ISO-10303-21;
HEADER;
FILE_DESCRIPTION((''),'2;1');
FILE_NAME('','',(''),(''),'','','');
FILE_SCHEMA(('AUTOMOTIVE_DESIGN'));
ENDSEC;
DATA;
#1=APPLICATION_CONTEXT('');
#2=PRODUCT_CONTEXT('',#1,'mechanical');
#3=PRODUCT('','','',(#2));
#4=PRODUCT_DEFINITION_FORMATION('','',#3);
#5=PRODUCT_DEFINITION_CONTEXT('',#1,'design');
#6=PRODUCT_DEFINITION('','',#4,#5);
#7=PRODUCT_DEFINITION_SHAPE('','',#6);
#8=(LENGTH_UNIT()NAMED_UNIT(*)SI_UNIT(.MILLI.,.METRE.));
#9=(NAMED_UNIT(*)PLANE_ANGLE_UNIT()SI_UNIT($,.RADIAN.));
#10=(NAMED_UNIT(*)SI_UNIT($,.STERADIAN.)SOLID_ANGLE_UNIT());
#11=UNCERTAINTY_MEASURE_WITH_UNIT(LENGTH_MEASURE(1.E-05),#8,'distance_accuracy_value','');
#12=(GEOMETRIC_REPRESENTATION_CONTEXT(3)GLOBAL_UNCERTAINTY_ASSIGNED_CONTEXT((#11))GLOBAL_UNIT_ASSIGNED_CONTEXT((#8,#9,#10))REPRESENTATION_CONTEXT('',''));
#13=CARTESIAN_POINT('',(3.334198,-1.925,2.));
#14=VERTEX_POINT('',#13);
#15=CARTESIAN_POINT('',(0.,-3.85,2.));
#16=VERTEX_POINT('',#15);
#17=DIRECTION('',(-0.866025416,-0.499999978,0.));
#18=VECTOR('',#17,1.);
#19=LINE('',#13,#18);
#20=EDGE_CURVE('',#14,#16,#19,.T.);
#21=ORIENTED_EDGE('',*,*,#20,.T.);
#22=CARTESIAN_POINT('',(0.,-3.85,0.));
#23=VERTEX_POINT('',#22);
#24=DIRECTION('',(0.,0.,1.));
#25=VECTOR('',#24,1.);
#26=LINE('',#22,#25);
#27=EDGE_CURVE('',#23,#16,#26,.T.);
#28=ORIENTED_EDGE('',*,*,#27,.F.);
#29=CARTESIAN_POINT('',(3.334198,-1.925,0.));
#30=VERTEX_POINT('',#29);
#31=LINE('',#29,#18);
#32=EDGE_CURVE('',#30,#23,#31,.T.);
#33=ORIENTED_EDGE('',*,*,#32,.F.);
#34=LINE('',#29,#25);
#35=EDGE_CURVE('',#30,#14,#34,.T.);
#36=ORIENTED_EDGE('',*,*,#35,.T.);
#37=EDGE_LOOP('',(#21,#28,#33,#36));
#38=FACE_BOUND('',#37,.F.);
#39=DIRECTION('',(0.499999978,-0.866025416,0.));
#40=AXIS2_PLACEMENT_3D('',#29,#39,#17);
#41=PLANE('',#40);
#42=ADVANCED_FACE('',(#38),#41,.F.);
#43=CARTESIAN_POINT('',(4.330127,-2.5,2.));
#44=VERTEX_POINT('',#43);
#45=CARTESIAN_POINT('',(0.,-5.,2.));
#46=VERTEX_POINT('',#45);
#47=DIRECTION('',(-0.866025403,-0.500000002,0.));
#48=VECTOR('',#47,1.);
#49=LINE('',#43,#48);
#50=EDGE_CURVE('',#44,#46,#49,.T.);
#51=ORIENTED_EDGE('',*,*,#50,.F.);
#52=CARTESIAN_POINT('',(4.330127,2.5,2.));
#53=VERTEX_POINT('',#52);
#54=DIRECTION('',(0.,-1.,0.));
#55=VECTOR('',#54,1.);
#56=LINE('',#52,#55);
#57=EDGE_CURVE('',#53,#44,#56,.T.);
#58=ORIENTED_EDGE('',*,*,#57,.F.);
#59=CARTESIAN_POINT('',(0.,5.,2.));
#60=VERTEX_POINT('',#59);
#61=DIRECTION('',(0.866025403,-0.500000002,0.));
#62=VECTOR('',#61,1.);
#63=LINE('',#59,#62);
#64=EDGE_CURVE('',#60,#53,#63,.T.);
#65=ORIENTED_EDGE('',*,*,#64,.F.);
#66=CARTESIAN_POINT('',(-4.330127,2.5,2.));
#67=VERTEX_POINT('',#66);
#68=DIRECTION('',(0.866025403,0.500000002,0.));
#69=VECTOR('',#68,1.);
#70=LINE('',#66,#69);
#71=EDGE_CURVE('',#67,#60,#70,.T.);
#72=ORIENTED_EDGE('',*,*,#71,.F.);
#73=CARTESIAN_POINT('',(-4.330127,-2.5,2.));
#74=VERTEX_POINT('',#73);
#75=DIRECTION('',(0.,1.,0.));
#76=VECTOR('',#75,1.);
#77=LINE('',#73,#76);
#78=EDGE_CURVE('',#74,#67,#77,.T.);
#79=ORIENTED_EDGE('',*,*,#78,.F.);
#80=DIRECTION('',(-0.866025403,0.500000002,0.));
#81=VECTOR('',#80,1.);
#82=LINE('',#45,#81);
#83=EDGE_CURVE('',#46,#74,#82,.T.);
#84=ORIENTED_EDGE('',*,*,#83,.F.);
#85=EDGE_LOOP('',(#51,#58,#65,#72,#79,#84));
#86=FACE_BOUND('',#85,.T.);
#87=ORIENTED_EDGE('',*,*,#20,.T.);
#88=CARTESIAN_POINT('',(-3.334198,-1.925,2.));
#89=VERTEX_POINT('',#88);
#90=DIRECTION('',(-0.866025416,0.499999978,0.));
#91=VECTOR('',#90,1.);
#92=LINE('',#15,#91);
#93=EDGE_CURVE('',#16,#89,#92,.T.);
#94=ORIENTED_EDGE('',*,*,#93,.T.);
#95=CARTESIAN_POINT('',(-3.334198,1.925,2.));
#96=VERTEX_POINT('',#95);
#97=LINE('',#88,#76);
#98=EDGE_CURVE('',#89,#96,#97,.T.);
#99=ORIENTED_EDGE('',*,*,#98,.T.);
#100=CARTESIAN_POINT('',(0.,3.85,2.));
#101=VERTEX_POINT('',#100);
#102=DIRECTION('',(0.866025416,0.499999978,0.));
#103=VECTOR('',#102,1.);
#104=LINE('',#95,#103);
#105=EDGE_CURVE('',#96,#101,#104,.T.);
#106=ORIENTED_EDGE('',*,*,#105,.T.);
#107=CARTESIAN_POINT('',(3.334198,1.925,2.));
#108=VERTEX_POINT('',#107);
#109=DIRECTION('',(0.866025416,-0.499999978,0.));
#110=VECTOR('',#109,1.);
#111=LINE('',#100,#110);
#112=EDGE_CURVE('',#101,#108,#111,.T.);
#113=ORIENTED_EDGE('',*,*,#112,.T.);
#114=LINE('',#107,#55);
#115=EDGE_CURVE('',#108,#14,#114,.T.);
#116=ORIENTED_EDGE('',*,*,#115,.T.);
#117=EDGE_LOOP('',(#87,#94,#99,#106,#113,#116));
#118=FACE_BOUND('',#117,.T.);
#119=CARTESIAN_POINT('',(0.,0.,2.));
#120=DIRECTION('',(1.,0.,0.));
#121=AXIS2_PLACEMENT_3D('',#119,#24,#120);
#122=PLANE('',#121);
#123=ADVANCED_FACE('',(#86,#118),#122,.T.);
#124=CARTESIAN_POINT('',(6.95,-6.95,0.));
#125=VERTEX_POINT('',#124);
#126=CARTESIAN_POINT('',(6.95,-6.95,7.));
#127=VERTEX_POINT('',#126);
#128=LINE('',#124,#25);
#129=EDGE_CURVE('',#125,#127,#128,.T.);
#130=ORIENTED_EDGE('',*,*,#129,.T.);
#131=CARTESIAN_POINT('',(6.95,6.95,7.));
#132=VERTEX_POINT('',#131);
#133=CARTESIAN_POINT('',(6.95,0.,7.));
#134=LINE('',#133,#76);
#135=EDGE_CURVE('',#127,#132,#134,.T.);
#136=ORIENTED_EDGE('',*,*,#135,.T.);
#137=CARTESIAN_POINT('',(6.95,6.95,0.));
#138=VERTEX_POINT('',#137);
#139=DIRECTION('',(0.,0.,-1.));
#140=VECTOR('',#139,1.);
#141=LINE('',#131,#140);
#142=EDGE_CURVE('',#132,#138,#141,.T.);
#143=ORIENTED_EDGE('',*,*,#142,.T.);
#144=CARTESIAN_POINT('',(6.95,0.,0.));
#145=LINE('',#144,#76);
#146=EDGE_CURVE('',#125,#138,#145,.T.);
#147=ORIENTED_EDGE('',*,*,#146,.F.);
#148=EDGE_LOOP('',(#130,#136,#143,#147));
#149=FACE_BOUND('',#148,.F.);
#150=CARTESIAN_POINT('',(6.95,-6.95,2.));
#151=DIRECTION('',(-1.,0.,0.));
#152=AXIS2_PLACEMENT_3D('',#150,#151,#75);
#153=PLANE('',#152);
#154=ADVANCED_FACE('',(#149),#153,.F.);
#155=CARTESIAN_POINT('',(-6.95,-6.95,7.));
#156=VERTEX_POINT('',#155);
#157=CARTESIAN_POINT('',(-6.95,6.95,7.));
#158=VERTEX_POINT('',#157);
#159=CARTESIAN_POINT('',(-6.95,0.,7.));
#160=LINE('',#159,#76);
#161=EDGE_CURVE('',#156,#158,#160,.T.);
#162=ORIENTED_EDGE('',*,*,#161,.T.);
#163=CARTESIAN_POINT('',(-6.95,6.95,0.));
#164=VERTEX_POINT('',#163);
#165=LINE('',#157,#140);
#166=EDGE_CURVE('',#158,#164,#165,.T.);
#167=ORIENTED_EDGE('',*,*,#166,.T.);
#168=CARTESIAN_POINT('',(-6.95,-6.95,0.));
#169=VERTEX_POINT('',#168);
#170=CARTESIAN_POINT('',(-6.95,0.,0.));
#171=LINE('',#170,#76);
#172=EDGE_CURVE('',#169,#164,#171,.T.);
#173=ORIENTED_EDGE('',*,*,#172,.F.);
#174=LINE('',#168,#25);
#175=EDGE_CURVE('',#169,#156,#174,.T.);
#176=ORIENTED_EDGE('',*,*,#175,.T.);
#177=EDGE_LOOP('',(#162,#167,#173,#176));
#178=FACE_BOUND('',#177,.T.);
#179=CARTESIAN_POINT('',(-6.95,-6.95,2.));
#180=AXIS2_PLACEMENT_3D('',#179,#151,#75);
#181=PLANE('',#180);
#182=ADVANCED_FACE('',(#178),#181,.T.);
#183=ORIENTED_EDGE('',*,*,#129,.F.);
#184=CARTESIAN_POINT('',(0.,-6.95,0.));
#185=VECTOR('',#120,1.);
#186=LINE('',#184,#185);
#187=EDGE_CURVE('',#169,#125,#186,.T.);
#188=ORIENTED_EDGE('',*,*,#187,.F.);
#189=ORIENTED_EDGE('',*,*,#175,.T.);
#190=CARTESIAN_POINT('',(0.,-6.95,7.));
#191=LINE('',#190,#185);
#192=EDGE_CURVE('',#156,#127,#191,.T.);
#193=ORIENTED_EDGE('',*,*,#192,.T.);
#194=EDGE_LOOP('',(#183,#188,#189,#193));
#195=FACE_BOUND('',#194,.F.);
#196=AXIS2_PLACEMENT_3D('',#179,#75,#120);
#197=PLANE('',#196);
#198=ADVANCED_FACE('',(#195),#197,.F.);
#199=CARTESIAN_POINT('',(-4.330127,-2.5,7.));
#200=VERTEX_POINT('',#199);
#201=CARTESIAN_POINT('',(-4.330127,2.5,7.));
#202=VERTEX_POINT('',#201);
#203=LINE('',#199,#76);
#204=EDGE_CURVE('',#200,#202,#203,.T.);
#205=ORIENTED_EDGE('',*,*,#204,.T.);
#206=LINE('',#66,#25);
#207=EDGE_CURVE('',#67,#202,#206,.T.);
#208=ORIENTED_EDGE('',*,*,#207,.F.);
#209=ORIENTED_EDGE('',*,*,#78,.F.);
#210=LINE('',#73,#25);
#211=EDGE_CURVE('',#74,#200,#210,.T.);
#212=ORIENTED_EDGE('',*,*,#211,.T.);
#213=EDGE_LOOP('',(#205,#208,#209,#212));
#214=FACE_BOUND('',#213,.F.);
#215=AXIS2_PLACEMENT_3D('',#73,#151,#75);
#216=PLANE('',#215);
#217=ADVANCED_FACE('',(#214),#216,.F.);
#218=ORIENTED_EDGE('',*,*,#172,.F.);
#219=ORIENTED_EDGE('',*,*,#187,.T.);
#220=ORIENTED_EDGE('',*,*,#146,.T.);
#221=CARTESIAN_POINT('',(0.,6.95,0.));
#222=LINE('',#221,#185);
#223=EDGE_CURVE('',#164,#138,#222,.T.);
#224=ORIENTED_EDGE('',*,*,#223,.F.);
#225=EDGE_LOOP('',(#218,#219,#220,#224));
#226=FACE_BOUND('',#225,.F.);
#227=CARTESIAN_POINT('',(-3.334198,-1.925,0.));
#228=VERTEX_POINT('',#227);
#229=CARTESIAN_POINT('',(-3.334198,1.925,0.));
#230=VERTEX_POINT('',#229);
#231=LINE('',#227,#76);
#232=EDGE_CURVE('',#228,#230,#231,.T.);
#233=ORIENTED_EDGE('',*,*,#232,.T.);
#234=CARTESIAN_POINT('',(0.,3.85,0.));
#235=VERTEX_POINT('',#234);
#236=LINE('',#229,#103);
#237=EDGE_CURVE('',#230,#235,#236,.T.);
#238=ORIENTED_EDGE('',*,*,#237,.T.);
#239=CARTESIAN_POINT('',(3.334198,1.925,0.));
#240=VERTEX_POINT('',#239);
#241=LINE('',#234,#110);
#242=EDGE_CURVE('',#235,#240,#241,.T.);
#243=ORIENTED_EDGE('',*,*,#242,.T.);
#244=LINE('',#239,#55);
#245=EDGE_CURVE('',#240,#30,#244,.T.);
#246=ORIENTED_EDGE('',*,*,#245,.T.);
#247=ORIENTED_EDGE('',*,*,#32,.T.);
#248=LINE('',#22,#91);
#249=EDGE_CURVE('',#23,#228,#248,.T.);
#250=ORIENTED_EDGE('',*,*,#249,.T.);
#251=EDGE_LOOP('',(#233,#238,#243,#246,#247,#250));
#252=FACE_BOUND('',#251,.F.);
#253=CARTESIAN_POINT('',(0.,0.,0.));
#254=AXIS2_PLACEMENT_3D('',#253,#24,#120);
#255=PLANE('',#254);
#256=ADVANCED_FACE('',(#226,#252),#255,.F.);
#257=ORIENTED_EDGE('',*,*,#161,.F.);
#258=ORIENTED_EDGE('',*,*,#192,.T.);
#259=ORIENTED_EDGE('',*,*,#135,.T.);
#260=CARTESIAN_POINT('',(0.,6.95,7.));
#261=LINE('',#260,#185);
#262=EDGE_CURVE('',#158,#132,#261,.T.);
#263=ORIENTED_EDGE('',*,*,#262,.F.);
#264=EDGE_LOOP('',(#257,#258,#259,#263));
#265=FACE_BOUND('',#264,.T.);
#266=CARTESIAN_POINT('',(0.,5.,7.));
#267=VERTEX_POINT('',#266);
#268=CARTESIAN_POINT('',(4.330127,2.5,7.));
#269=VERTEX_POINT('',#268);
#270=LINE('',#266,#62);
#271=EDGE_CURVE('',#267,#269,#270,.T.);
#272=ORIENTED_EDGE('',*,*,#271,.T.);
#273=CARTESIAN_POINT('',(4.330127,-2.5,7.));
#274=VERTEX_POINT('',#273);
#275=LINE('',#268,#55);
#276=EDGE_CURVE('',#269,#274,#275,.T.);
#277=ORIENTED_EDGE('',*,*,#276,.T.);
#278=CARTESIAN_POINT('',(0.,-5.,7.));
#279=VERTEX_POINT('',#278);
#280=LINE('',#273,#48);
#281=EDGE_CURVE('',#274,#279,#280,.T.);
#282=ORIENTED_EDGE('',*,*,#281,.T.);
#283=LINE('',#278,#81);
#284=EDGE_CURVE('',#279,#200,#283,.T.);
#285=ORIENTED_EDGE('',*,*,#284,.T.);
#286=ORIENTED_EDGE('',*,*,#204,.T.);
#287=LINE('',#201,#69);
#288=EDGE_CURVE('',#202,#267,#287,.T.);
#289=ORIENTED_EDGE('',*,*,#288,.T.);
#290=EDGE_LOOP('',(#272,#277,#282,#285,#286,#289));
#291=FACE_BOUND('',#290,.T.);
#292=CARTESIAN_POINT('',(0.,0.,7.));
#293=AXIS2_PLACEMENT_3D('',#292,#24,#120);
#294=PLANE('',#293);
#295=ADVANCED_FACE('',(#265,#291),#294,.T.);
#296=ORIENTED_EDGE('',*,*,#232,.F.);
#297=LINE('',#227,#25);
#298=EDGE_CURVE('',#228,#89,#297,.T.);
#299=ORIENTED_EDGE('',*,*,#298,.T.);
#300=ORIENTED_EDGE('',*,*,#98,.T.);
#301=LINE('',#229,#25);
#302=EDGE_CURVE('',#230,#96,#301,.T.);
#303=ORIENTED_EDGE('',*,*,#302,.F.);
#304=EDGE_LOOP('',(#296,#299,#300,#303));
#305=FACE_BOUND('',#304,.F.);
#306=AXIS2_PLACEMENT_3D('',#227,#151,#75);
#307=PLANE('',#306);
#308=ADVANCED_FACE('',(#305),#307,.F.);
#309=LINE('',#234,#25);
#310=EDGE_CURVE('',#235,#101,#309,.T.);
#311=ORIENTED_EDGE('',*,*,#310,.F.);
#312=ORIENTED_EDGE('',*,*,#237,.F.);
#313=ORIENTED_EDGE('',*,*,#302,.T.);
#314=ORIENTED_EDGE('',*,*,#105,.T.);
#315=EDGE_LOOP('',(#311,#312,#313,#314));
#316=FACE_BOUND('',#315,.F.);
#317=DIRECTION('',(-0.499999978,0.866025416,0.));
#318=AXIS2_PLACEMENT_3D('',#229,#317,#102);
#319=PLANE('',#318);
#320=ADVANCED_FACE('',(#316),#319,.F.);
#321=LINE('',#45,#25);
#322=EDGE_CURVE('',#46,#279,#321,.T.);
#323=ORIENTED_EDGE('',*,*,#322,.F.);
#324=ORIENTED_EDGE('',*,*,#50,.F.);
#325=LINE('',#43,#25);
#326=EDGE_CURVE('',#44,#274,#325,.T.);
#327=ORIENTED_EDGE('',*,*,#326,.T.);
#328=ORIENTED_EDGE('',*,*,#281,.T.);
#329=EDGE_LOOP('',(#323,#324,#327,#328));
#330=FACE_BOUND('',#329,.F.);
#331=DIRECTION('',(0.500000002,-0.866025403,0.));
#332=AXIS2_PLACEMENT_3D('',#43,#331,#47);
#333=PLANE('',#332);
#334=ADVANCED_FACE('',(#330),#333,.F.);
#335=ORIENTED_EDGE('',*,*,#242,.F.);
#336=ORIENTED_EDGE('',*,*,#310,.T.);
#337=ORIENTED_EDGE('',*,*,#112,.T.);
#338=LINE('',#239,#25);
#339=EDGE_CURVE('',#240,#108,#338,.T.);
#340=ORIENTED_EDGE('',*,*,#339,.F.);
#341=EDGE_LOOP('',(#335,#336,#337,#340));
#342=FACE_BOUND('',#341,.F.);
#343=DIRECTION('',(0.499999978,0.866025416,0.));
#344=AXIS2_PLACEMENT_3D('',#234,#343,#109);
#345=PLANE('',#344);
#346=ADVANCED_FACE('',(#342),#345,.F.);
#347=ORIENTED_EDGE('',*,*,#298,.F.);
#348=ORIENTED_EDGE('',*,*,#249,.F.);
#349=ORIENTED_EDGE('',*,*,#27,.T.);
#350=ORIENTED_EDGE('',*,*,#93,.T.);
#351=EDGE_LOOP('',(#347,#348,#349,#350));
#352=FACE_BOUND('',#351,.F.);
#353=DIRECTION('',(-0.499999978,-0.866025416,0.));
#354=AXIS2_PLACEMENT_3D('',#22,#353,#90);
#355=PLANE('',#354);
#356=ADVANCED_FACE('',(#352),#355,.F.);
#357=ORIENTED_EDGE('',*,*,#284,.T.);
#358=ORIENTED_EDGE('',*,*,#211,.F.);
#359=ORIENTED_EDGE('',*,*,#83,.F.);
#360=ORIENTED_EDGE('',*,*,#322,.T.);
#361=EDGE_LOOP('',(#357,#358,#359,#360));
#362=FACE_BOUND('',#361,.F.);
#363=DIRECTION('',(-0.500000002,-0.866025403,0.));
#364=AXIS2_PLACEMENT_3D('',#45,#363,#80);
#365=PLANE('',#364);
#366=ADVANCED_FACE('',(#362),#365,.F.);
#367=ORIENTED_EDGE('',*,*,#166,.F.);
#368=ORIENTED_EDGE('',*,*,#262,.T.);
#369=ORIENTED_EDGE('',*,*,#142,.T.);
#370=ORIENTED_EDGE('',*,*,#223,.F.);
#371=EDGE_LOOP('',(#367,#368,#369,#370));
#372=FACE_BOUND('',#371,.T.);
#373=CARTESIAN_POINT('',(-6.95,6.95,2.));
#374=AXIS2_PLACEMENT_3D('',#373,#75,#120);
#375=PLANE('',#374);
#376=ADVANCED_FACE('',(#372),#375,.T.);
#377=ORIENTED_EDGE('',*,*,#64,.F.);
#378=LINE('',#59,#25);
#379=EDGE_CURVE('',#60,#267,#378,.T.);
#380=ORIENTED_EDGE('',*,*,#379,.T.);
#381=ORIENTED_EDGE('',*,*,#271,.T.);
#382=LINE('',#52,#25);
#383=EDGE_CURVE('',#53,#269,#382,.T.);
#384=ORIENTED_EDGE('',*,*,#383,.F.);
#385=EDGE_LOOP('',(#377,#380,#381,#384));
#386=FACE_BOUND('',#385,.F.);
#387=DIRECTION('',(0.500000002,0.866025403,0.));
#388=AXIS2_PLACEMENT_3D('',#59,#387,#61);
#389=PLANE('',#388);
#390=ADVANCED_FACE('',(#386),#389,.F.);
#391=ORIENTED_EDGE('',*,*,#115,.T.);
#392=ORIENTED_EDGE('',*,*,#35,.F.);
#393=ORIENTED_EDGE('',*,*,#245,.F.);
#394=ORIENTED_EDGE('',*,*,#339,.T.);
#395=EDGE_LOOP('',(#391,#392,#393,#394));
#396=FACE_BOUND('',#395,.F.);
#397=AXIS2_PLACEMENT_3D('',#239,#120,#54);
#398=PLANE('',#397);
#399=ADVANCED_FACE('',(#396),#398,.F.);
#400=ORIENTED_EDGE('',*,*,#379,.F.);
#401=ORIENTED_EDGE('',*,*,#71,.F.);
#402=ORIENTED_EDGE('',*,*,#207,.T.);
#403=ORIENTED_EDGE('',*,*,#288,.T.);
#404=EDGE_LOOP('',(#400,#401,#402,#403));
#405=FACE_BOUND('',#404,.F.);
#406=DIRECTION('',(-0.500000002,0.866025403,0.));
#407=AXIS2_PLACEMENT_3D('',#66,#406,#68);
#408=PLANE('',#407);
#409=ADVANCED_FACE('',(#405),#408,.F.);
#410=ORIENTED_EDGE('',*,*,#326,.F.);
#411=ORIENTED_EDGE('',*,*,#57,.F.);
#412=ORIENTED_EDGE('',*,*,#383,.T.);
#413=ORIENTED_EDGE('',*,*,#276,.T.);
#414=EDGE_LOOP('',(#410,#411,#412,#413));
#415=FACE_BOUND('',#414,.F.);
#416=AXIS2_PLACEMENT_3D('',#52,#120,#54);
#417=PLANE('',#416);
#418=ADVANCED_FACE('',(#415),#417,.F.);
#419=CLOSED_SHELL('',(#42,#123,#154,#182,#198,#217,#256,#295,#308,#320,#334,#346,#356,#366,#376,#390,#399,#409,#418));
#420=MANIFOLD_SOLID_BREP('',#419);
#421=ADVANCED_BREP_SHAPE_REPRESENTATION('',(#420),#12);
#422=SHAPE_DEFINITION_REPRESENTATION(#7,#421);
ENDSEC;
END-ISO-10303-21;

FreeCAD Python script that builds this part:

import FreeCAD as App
import Part
import Sketcher

V = App.Vector
Q = App.Units.Quantity


def add_polygon(sketch, points):
    """Adds a closed chain of lines whose ends are joined by coincident constraints."""
    first, n = sketch.GeometryCount, len(points)
    for a, b in zip(points, points[1:] + points[:1]):
        sketch.addGeometry(Part.LineSegment(App.Vector(*a, 0), App.Vector(*b, 0)), False)
    for i in range(n):
        sketch.addConstraint(Sketcher.Constraint("Coincident", first + i, 2, first + (i + 1) % n, 1))

doc = App.newDocument("Part")
body = doc.addObject("PartDesign::Body", "Body")

# Sketch on XY plane
sketch1 = doc.addObject("Sketcher::SketchObject", "Sketch")
body.addObject(sketch1)
sketch1.AttachmentSupport = (doc.XY_Plane, [""])
sketch1.MapMode = "FlatFace"
add_polygon(sketch1, [(-6.95, 6.95), (-6.95, -6.95), (6.95, -6.95), (6.95, 6.95)])  # lines 0-3
add_polygon(sketch1, [(0, -3.85), (-3.334198, -1.925), (-3.334198, 1.925), (0, 3.85), (3.334198, 1.925), (3.334198, -1.925)])  # lines 4-9
sketch1.addConstraint([
    Sketcher.Constraint("Vertical", 0),
    Sketcher.Constraint("Horizontal", 1),
    Sketcher.Constraint("Vertical", 2),
    Sketcher.Constraint("Horizontal", 3),
    Sketcher.Constraint("Vertical", 5),
    Sketcher.Constraint("Vertical", 8),
    Sketcher.Constraint("Symmetric", 0, 2, 2, 2, -1, 1),
    Sketcher.Constraint("Symmetric", 4, 2, 7, 2, -1, 1),
    Sketcher.Constraint("Symmetric", 6, 2, 9, 2, -1, 1),
    Sketcher.Constraint("PointOnObject", 6, 2, -2),
    Sketcher.Constraint("Parallel", 6, 9),
    Sketcher.Constraint("Horizontal", 5, 2, 7, 2),
    Sketcher.Constraint("Equal", 3, 0),
    Sketcher.Constraint("Angle", 4, Q("150.000001 deg")),
    Sketcher.Constraint("DistanceX", 1, 1, 1, 2, 13.9),
    Sketcher.Constraint("DistanceY", 5, 1, 5, 2, 3.85),
    Sketcher.Constraint("DistanceY", 6, 2, 2, 2, 3.1),
])
pad1 = doc.addObject("PartDesign::Pad", "Pad")
body.addObject(pad1)
pad1.Profile = sketch1
pad1.Length = 2

# Sketch on XY plane
sketch2 = doc.addObject("Sketcher::SketchObject", "Sketch001")
body.addObject(sketch2)
sketch2.AttachmentSupport = (doc.XY_Plane, [""])
sketch2.MapMode = "FlatFace"
sketch2.AttachmentOffset = App.Placement(V(0, 0, 2), App.Rotation())
add_polygon(sketch2, [(-6.95, 6.95), (-6.95, -6.95), (6.95, -6.95), (6.95, 6.95)])  # lines 0-3
add_polygon(sketch2, [(-4.330127, -2.5), (-4.330127, 2.5), (0, 5), (4.330127, 2.5), (4.330127, -2.5), (0, -5)])  # lines 4-9
sketch2.addConstraint([
    Sketcher.Constraint("Vertical", 0),
    Sketcher.Constraint("Horizontal", 1),
    Sketcher.Constraint("Vertical", 2),
    Sketcher.Constraint("Horizontal", 3),
    Sketcher.Constraint("Vertical", 4),
    Sketcher.Constraint("Vertical", 7),
    Sketcher.Constraint("Symmetric", 0, 2, 2, 2, -1, 1),
    Sketcher.Constraint("Symmetric", 4, 2, 7, 2, -1, 1),
    Sketcher.Constraint("Symmetric", 5, 2, 8, 2, -1, 1),
    Sketcher.Constraint("PointOnObject", 5, 2, -2),
    Sketcher.Constraint("Parallel", 6, 9),
    Sketcher.Constraint("Horizontal", 4, 2, 6, 2),
    Sketcher.Constraint("Equal", 3, 0),
    Sketcher.Constraint("DistanceY", 4, 1, 4, 2, 5.0),
    Sketcher.Constraint("Angle", 5, Q("30 deg")),
    Sketcher.Constraint("Distance", 5, 5.0),
    Sketcher.Constraint("DistanceX", 1, 1, 1, 2, 13.9),
])
pad2 = doc.addObject("PartDesign::Pad", "Pad001")
body.addObject(pad2)
pad2.Profile = sketch2
pad2.Length = 5

doc.recompute()
